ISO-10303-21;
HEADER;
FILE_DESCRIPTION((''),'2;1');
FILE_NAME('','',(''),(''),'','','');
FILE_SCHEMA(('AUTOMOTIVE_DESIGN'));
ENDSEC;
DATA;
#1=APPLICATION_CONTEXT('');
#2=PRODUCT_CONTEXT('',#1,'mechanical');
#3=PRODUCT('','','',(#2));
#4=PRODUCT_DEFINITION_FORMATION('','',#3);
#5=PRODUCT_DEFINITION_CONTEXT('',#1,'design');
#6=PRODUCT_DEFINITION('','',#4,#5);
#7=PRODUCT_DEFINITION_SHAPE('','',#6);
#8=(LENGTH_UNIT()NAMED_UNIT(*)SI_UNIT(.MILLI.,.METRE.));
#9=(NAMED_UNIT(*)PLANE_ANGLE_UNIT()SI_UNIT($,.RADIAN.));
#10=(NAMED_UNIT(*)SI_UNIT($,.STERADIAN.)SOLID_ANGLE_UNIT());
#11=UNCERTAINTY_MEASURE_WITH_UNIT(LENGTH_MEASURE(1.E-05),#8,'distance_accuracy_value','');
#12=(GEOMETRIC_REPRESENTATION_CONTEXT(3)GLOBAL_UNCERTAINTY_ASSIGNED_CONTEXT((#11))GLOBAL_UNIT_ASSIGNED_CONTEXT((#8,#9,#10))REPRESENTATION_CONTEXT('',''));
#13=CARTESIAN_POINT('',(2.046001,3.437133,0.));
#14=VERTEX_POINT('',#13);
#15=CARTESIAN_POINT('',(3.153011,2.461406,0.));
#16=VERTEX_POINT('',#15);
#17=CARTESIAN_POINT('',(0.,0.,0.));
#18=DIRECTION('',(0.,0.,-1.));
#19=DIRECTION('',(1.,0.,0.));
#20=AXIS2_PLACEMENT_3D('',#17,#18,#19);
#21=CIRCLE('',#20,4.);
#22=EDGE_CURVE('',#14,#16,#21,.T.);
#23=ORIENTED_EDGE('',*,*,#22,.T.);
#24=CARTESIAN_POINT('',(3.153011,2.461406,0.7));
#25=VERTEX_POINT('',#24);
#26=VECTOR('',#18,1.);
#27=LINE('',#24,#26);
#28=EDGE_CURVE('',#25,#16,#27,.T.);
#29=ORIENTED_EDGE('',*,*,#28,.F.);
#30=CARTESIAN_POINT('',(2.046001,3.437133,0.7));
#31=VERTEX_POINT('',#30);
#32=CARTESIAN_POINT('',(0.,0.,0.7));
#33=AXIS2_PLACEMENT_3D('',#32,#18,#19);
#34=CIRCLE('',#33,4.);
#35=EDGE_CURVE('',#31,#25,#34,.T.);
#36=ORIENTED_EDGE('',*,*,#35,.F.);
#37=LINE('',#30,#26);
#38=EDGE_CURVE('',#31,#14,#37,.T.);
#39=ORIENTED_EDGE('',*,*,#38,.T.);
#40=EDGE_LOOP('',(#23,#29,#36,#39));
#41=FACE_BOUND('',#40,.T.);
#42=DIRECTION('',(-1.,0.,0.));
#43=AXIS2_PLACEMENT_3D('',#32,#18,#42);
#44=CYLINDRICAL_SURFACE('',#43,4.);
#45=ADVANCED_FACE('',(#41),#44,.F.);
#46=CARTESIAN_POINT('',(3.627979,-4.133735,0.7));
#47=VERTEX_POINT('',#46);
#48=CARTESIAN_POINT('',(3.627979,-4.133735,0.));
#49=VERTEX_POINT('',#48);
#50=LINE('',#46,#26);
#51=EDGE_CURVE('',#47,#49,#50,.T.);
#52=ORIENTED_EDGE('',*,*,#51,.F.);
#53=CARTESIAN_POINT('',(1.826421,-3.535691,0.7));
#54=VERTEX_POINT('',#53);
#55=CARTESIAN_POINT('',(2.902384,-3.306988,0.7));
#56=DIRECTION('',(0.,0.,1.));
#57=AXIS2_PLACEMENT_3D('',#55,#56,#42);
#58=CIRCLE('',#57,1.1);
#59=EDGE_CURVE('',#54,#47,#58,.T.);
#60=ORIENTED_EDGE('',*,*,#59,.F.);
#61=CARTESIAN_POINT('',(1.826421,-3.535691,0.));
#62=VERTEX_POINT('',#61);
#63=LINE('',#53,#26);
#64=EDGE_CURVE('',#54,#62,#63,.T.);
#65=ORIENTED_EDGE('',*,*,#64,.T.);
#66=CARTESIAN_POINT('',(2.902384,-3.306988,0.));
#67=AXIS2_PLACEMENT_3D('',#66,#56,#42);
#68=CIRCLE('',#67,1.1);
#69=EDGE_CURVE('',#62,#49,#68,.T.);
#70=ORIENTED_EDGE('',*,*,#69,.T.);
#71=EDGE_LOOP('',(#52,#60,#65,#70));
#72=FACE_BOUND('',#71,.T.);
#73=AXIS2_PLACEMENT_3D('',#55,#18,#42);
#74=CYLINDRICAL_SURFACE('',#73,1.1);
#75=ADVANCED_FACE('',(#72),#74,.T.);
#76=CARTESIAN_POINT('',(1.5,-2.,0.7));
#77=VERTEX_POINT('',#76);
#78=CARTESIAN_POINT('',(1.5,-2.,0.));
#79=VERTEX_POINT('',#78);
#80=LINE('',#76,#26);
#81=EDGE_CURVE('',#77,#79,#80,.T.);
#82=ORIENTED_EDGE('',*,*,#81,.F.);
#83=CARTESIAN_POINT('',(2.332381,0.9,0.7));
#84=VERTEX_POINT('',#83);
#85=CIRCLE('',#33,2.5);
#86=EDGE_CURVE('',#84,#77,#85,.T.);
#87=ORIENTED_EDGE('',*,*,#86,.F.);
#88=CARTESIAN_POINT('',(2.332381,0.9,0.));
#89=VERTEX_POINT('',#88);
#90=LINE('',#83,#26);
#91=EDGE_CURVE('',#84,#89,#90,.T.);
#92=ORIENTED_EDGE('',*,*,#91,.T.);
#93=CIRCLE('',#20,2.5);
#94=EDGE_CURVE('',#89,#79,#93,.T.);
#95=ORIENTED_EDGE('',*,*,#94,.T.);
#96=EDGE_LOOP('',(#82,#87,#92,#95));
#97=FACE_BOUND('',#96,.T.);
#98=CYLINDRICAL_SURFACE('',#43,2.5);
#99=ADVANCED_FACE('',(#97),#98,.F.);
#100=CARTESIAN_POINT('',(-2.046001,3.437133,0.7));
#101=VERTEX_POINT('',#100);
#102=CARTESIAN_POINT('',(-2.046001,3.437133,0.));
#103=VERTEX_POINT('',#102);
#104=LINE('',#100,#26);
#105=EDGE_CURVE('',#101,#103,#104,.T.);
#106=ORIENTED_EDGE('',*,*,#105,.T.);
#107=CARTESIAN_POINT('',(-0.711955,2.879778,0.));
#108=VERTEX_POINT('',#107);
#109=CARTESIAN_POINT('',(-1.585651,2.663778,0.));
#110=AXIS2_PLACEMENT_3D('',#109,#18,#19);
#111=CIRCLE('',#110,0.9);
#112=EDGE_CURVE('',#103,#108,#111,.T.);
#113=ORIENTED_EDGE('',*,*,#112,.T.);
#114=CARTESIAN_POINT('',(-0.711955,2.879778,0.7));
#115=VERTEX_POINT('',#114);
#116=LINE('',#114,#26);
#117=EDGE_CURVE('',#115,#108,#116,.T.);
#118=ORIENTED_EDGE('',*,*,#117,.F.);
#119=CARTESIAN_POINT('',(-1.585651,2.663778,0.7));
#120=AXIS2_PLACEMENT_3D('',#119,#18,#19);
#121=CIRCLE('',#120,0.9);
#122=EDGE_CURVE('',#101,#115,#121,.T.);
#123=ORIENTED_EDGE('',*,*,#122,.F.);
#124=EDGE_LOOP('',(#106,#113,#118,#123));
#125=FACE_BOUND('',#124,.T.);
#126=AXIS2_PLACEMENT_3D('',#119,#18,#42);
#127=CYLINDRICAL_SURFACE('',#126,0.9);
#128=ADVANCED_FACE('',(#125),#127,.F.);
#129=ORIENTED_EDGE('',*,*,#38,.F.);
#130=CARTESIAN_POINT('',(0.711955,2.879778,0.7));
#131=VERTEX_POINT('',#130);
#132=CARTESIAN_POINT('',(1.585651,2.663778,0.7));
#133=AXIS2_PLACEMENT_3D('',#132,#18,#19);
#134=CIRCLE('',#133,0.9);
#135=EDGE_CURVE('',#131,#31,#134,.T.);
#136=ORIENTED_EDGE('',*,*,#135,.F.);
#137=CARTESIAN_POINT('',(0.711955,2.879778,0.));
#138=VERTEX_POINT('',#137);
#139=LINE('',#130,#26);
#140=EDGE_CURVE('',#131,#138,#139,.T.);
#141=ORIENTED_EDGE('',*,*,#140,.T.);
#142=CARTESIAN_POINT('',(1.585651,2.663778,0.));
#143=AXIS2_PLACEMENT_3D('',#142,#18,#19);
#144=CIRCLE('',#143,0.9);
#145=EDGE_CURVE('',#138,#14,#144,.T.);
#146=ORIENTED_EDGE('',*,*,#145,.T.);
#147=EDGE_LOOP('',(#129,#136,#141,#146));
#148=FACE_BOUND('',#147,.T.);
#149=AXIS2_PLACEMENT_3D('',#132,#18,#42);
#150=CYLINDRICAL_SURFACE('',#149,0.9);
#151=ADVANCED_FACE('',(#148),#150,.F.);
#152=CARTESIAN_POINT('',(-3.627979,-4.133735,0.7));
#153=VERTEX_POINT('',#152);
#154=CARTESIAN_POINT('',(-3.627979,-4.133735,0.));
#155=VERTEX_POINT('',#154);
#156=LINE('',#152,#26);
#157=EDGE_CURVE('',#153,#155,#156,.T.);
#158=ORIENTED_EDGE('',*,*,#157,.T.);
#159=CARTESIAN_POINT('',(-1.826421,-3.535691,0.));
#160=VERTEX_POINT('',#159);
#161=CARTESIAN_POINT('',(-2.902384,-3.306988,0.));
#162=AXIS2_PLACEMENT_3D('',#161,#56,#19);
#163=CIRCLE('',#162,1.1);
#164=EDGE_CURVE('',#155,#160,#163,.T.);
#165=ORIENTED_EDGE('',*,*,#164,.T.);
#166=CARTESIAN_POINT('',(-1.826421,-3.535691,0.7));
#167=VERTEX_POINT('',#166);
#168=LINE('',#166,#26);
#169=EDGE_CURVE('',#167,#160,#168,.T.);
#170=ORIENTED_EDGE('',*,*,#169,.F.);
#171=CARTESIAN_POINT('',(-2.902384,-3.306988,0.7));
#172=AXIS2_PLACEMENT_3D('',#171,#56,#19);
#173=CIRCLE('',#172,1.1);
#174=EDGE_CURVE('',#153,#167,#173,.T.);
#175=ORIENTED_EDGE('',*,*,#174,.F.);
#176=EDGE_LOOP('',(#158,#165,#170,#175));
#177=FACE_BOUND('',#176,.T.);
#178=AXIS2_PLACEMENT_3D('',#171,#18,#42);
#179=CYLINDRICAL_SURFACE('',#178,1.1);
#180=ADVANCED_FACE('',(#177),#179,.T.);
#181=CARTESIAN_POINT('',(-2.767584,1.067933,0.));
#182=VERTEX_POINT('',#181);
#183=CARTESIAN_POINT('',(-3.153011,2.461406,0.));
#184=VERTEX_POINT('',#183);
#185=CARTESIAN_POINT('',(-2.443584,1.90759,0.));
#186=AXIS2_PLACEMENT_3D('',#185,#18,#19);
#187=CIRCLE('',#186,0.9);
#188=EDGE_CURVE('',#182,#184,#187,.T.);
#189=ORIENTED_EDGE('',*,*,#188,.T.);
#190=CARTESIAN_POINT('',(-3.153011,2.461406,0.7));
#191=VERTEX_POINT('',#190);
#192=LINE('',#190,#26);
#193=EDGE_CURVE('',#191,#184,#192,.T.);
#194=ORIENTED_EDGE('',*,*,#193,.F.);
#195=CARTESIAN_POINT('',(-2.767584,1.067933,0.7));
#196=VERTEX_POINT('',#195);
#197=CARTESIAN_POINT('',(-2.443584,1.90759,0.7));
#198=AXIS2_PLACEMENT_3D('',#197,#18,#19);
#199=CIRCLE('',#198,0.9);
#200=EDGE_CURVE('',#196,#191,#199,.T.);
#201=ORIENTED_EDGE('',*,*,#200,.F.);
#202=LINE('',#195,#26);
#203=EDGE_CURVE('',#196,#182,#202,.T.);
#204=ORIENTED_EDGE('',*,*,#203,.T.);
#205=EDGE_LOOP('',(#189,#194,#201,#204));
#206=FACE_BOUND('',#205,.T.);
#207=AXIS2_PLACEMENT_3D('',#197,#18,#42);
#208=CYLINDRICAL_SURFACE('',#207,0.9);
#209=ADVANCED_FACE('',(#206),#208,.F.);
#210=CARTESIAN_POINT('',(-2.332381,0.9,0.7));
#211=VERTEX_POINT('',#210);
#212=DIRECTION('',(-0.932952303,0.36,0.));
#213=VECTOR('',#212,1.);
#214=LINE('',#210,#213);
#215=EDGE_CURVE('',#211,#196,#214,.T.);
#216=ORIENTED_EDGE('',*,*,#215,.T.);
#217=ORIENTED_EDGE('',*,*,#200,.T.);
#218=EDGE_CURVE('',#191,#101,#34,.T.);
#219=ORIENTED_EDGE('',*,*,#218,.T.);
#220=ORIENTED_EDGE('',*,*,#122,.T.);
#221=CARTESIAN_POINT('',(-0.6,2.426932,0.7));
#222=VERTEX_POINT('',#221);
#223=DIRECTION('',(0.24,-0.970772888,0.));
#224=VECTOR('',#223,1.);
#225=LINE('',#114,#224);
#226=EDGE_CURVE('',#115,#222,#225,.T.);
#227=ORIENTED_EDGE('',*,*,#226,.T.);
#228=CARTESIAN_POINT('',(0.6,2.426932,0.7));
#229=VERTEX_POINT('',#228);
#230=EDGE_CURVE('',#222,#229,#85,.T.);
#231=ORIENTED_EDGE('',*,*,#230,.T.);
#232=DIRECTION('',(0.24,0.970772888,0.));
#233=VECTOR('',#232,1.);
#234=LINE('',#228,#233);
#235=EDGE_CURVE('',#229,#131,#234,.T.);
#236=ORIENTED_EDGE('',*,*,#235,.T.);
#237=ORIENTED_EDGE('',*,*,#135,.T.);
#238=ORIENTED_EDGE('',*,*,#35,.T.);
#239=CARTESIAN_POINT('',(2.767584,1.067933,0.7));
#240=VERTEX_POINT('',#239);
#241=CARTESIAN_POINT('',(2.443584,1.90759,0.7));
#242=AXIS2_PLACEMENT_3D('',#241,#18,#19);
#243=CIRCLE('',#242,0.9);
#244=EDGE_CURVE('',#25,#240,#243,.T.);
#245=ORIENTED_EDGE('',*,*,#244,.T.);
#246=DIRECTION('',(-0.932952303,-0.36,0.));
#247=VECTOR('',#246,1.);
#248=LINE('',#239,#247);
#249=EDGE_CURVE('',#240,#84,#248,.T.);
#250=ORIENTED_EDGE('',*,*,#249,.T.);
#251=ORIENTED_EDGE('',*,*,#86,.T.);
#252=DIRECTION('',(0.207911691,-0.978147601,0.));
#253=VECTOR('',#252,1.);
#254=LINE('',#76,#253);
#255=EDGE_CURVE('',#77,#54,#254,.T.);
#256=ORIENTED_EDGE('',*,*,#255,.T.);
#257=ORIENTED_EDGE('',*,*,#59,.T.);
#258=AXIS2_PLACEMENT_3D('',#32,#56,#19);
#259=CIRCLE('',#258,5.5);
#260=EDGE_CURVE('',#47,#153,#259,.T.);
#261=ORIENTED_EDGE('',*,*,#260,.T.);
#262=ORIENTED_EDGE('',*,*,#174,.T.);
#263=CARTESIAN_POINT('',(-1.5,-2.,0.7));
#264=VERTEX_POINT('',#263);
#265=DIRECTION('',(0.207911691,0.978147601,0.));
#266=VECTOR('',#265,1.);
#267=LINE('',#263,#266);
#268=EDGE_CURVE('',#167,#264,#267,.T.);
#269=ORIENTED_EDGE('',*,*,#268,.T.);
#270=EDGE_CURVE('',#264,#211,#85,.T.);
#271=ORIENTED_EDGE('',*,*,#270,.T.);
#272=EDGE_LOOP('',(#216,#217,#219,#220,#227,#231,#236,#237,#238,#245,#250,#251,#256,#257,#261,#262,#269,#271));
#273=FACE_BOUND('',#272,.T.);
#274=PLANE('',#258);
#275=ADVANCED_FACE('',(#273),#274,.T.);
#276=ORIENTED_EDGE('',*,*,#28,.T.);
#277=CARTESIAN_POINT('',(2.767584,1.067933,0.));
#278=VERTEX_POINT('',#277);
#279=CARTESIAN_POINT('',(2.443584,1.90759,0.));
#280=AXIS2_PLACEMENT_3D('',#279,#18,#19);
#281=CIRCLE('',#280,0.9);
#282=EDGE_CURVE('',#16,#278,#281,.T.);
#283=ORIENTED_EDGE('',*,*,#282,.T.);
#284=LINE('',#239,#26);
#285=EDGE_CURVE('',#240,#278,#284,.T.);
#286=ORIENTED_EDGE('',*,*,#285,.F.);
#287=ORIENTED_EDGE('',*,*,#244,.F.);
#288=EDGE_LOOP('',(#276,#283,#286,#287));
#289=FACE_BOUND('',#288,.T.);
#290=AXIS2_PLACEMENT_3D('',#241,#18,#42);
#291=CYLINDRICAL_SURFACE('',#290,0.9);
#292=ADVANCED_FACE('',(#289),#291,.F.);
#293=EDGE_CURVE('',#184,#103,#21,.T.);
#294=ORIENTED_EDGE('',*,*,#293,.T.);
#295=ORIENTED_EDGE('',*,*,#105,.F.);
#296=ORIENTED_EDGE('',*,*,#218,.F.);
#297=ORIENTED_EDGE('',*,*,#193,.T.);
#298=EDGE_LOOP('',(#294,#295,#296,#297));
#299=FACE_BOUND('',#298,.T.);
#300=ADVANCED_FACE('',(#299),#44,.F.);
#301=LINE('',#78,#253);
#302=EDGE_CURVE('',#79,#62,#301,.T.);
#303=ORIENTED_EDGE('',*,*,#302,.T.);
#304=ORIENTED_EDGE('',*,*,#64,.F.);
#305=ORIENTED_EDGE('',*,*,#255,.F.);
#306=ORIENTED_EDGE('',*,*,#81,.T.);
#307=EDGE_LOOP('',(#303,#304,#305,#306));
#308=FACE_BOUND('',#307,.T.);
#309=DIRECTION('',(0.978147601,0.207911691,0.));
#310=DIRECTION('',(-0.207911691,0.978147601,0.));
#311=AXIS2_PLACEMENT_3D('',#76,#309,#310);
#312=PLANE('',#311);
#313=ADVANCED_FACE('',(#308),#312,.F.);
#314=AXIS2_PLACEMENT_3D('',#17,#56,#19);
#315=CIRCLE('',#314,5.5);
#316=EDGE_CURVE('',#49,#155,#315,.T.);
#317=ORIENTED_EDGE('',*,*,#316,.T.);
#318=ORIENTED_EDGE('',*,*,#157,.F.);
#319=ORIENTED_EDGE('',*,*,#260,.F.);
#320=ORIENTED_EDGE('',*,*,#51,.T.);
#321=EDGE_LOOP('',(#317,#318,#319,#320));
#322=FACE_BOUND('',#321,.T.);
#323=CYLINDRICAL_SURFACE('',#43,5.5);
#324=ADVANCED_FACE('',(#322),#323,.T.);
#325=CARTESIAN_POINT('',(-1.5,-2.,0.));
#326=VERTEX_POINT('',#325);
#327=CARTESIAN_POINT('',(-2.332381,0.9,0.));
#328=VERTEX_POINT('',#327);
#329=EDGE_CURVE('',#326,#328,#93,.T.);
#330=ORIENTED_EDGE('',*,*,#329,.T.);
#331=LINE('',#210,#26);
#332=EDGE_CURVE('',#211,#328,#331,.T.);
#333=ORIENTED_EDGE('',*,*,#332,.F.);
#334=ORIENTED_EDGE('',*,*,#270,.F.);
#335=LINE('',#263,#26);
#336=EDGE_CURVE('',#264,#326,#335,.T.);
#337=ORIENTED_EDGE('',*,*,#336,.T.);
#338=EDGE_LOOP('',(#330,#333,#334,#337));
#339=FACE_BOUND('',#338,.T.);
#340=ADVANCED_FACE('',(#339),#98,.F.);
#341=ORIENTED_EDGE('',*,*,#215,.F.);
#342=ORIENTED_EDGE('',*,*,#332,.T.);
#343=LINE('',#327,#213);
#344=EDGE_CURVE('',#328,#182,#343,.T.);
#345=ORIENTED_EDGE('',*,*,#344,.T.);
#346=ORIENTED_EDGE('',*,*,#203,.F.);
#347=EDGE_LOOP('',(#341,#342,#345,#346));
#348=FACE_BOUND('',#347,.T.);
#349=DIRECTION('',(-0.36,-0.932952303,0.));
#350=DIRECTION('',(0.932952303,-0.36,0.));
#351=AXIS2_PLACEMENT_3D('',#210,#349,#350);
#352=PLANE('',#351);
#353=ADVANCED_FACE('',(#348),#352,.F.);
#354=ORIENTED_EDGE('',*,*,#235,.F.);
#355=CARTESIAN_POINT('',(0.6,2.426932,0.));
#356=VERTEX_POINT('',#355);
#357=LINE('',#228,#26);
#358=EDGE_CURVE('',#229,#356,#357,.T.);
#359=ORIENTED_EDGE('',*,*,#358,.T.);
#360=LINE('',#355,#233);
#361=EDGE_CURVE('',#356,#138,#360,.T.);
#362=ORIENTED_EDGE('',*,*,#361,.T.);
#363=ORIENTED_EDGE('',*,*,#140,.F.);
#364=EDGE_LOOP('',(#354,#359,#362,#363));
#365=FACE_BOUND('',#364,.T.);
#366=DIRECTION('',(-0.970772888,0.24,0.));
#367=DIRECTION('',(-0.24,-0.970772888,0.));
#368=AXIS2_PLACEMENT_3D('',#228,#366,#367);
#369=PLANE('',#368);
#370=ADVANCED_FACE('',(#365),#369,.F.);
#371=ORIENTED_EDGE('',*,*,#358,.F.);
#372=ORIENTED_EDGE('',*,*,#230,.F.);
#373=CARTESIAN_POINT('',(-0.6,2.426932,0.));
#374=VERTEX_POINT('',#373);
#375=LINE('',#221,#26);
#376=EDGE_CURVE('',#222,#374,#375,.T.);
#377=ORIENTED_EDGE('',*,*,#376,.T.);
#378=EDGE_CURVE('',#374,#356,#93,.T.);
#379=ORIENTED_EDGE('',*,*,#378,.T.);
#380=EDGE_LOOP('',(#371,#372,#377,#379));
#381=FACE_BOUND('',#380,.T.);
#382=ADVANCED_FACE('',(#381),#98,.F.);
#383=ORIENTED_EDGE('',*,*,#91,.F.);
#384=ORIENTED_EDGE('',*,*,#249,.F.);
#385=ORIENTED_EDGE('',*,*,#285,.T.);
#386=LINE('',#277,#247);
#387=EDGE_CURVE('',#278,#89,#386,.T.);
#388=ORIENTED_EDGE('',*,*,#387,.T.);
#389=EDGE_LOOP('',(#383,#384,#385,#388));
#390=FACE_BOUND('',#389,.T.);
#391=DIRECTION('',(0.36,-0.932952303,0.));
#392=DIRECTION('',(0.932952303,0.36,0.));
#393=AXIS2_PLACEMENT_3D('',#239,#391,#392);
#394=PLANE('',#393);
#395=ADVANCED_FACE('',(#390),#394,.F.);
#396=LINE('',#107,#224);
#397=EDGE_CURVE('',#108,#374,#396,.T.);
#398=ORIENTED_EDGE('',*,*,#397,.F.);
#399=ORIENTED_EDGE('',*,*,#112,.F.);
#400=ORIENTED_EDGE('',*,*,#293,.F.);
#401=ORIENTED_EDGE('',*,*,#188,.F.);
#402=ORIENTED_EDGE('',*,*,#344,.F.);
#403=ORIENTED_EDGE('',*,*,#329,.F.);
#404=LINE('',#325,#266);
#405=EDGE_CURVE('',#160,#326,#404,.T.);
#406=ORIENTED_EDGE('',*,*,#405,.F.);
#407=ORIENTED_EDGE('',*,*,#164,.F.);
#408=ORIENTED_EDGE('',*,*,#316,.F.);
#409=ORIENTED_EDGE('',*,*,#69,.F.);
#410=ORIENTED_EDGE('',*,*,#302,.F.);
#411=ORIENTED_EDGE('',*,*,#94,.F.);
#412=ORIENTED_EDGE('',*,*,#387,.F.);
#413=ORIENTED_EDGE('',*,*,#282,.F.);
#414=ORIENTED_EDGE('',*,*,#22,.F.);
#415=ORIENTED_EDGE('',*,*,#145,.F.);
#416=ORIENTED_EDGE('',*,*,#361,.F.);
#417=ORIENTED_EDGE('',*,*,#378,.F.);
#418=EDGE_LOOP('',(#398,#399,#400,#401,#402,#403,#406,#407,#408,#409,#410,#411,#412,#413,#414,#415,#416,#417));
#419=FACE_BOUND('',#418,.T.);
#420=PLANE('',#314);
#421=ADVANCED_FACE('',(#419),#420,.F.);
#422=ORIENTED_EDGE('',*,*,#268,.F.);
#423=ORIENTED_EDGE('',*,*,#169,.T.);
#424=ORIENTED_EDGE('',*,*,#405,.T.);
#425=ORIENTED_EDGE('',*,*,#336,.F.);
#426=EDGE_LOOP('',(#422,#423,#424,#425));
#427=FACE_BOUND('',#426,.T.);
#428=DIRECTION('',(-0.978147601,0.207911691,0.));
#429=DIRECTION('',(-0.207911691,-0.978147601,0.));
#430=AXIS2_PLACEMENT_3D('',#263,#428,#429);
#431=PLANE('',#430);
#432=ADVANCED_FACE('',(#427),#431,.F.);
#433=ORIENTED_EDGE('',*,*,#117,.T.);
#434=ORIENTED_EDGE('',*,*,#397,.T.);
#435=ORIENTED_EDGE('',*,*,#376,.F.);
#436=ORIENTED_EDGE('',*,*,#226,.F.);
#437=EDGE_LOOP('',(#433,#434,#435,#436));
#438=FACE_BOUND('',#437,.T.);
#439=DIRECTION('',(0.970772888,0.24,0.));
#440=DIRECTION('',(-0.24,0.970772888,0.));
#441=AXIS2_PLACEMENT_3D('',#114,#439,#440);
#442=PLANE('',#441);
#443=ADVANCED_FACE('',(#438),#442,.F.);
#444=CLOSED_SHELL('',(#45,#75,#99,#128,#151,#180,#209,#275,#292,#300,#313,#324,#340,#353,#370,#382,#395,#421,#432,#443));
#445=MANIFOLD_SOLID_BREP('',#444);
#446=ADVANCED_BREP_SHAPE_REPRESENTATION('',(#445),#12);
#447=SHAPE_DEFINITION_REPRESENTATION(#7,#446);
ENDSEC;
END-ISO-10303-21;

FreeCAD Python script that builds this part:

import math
import FreeCAD as App
import Part
import Sketcher

V = App.Vector
Q = App.Units.Quantity

doc = App.newDocument("Part")
body = doc.addObject("PartDesign::Body", "Body")

# Sketch on XY plane
sketch1 = doc.addObject("Sketcher::SketchObject", "Sketch")
body.addObject(sketch1)
sketch1.AttachmentSupport = (doc.XY_Plane, [""])
sketch1.MapMode = "FlatFace"
sketch1.addGeometry([
    Part.LineSegment(V(-1.83, -3.54, 0), V(-1.5, -2, 0)),  # 0
    Part.ArcOfCircle(Part.Circle(V(0, 0, 0), V(0, 0, 1), 2.5), math.radians(159), math.radians(233)),  # 1
    Part.LineSegment(V(-2.33, 0.9, 0), V(-2.77, 1.07, 0)),  # 2
    Part.ArcOfCircle(Part.Circle(V(-2.44, 1.91, 0), V(0, 0, 1), 0.9), math.radians(142), math.radians(249)),  # 3
    Part.ArcOfCircle(Part.Circle(V(0, 0, 0), V(0, 0, 1), 4), math.radians(121), math.radians(142)),  # 4
    Part.ArcOfCircle(Part.Circle(V(-1.59, 2.66, 0), V(0, 0, 1), 0.9), math.radians(14), math.radians(121)),  # 5
    Part.LineSegment(V(-0.71, 2.88, 0), V(-0.6, 2.43, 0)),  # 6
    Part.ArcOfCircle(Part.Circle(V(0, 0, 0), V(0, 0, 1), 2.5), math.radians(76), math.radians(104)),  # 7
    Part.LineSegment(V(0.6, 2.43, 0), V(0.71, 2.88, 0)),  # 8
    Part.ArcOfCircle(Part.Circle(V(1.59, 2.66, 0), V(0, 0, 1), 0.9), math.radians(59), math.radians(166)),  # 9
    Part.ArcOfCircle(Part.Circle(V(0, 0, 0), V(0, 0, 1), 4), math.radians(38), math.radians(59)),  # 10
    Part.ArcOfCircle(Part.Circle(V(2.44, 1.91, 0), V(0, 0, 1), 0.9), math.radians(-69), math.radians(38)),  # 11
    Part.LineSegment(V(2.77, 1.07, 0), V(2.33, 0.9, 0)),  # 12
    Part.ArcOfCircle(Part.Circle(V(0, 0, 0), V(0, 0, 1), 2.5), math.radians(-53), math.radians(21)),  # 13
    Part.LineSegment(V(1.5, -2, 0), V(1.83, -3.54, 0)),  # 14
    Part.ArcOfCircle(Part.Circle(V(2.9, -3.31, 0), V(0, 0, 1), 1.1), math.radians(-168), math.radians(-49)),  # 15
    Part.ArcOfCircle(Part.Circle(V(0, 0, 0), V(0, 0, 1), 5.5), math.radians(-49), math.radians(229)),  # 16
    Part.ArcOfCircle(Part.Circle(V(-2.9, -3.31, 0), V(0, 0, 1), 1.1), math.radians(-131), math.radians(-12)),  # 17
], False)
sketch1.addConstraint([
    Sketcher.Constraint("Coincident", 0, 2, 1, 2),
    Sketcher.Constraint("Coincident", 1, 1, 2, 1),
    Sketcher.Constraint("Tangent", 2, 2, 3, 2),
    Sketcher.Constraint("Tangent", 3, 1, 4, 2),
    Sketcher.Constraint("Tangent", 4, 1, 5, 2),
    Sketcher.Constraint("Tangent", 5, 1, 6, 1),
    Sketcher.Constraint("Coincident", 6, 2, 7, 2),
    Sketcher.Constraint("Coincident", 7, 1, 8, 1),
    Sketcher.Constraint("Tangent", 8, 2, 9, 2),
    Sketcher.Constraint("Tangent", 9, 1, 10, 2),
    Sketcher.Constraint("Tangent", 10, 1, 11, 2),
    Sketcher.Constraint("Tangent", 11, 1, 12, 1),
    Sketcher.Constraint("Coincident", 12, 2, 13, 2),
    Sketcher.Constraint("Coincident", 13, 1, 14, 1),
    Sketcher.Constraint("Tangent", 14, 2, 15, 1),
    Sketcher.Constraint("Tangent", 15, 2, 16, 1),
    Sketcher.Constraint("Tangent", 16, 2, 17, 1),
    Sketcher.Constraint("Tangent", 17, 2, 0, 1),
    Sketcher.Constraint("Coincident", 1, 3, -1, 1),
    Sketcher.Constraint("Coincident", 4, 3, -1, 1),
    Sketcher.Constraint("Coincident", 7, 3, -1, 1),
    Sketcher.Constraint("Coincident", 10, 3, -1, 1),
    Sketcher.Constraint("Coincident", 13, 3, -1, 1),
    Sketcher.Constraint("Coincident", 16, 3, -1, 1),
    Sketcher.Constraint("Equal", 3, 5),
    Sketcher.Constraint("Equal", 1, 7),
    Sketcher.Constraint("Equal", 5, 9),
    Sketcher.Constraint("Equal", 4, 10),
    Sketcher.Constraint("Equal", 9, 11),
    Sketcher.Constraint("Equal", 7, 13),
    Sketcher.Constraint("Equal", 15, 17),
    Sketcher.Constraint("Symmetric", 5, 1, 8, 2, -2),
    Sketcher.Constraint("Symmetric", 2, 2, 11, 1, -2),
    Sketcher.Constraint("Symmetric", 14, 2, 17, 2, -2),
    Sketcher.Constraint("Equal", 2, 6),
    Sketcher.Constraint("Radius", 4, 4.0),
    Sketcher.Constraint("Radius", 1, 2.5),
    Sketcher.Constraint("Radius", 3, 0.9),
    Sketcher.Constraint("Radius", 15, 1.1),
    Sketcher.Constraint("Radius", 16, 5.5),
    Sketcher.Constraint("Angle", 0, Q("78 deg")),
    Sketcher.Constraint("DistanceY", 0, 2, -1, 1, 2.0),
    Sketcher.Constraint("DistanceY", -1, 1, 1, 1, 0.9),
    Sketcher.Constraint("DistanceX", 6, 2, -1, 1, 0.6),
    Sketcher.Constraint("DistanceX", 4, 1, -1, 1, 2.046001),
])
pad1 = doc.addObject("PartDesign::Pad", "Pad")
body.addObject(pad1)
pad1.Profile = sketch1
pad1.Length = 0.7

doc.recompute()
